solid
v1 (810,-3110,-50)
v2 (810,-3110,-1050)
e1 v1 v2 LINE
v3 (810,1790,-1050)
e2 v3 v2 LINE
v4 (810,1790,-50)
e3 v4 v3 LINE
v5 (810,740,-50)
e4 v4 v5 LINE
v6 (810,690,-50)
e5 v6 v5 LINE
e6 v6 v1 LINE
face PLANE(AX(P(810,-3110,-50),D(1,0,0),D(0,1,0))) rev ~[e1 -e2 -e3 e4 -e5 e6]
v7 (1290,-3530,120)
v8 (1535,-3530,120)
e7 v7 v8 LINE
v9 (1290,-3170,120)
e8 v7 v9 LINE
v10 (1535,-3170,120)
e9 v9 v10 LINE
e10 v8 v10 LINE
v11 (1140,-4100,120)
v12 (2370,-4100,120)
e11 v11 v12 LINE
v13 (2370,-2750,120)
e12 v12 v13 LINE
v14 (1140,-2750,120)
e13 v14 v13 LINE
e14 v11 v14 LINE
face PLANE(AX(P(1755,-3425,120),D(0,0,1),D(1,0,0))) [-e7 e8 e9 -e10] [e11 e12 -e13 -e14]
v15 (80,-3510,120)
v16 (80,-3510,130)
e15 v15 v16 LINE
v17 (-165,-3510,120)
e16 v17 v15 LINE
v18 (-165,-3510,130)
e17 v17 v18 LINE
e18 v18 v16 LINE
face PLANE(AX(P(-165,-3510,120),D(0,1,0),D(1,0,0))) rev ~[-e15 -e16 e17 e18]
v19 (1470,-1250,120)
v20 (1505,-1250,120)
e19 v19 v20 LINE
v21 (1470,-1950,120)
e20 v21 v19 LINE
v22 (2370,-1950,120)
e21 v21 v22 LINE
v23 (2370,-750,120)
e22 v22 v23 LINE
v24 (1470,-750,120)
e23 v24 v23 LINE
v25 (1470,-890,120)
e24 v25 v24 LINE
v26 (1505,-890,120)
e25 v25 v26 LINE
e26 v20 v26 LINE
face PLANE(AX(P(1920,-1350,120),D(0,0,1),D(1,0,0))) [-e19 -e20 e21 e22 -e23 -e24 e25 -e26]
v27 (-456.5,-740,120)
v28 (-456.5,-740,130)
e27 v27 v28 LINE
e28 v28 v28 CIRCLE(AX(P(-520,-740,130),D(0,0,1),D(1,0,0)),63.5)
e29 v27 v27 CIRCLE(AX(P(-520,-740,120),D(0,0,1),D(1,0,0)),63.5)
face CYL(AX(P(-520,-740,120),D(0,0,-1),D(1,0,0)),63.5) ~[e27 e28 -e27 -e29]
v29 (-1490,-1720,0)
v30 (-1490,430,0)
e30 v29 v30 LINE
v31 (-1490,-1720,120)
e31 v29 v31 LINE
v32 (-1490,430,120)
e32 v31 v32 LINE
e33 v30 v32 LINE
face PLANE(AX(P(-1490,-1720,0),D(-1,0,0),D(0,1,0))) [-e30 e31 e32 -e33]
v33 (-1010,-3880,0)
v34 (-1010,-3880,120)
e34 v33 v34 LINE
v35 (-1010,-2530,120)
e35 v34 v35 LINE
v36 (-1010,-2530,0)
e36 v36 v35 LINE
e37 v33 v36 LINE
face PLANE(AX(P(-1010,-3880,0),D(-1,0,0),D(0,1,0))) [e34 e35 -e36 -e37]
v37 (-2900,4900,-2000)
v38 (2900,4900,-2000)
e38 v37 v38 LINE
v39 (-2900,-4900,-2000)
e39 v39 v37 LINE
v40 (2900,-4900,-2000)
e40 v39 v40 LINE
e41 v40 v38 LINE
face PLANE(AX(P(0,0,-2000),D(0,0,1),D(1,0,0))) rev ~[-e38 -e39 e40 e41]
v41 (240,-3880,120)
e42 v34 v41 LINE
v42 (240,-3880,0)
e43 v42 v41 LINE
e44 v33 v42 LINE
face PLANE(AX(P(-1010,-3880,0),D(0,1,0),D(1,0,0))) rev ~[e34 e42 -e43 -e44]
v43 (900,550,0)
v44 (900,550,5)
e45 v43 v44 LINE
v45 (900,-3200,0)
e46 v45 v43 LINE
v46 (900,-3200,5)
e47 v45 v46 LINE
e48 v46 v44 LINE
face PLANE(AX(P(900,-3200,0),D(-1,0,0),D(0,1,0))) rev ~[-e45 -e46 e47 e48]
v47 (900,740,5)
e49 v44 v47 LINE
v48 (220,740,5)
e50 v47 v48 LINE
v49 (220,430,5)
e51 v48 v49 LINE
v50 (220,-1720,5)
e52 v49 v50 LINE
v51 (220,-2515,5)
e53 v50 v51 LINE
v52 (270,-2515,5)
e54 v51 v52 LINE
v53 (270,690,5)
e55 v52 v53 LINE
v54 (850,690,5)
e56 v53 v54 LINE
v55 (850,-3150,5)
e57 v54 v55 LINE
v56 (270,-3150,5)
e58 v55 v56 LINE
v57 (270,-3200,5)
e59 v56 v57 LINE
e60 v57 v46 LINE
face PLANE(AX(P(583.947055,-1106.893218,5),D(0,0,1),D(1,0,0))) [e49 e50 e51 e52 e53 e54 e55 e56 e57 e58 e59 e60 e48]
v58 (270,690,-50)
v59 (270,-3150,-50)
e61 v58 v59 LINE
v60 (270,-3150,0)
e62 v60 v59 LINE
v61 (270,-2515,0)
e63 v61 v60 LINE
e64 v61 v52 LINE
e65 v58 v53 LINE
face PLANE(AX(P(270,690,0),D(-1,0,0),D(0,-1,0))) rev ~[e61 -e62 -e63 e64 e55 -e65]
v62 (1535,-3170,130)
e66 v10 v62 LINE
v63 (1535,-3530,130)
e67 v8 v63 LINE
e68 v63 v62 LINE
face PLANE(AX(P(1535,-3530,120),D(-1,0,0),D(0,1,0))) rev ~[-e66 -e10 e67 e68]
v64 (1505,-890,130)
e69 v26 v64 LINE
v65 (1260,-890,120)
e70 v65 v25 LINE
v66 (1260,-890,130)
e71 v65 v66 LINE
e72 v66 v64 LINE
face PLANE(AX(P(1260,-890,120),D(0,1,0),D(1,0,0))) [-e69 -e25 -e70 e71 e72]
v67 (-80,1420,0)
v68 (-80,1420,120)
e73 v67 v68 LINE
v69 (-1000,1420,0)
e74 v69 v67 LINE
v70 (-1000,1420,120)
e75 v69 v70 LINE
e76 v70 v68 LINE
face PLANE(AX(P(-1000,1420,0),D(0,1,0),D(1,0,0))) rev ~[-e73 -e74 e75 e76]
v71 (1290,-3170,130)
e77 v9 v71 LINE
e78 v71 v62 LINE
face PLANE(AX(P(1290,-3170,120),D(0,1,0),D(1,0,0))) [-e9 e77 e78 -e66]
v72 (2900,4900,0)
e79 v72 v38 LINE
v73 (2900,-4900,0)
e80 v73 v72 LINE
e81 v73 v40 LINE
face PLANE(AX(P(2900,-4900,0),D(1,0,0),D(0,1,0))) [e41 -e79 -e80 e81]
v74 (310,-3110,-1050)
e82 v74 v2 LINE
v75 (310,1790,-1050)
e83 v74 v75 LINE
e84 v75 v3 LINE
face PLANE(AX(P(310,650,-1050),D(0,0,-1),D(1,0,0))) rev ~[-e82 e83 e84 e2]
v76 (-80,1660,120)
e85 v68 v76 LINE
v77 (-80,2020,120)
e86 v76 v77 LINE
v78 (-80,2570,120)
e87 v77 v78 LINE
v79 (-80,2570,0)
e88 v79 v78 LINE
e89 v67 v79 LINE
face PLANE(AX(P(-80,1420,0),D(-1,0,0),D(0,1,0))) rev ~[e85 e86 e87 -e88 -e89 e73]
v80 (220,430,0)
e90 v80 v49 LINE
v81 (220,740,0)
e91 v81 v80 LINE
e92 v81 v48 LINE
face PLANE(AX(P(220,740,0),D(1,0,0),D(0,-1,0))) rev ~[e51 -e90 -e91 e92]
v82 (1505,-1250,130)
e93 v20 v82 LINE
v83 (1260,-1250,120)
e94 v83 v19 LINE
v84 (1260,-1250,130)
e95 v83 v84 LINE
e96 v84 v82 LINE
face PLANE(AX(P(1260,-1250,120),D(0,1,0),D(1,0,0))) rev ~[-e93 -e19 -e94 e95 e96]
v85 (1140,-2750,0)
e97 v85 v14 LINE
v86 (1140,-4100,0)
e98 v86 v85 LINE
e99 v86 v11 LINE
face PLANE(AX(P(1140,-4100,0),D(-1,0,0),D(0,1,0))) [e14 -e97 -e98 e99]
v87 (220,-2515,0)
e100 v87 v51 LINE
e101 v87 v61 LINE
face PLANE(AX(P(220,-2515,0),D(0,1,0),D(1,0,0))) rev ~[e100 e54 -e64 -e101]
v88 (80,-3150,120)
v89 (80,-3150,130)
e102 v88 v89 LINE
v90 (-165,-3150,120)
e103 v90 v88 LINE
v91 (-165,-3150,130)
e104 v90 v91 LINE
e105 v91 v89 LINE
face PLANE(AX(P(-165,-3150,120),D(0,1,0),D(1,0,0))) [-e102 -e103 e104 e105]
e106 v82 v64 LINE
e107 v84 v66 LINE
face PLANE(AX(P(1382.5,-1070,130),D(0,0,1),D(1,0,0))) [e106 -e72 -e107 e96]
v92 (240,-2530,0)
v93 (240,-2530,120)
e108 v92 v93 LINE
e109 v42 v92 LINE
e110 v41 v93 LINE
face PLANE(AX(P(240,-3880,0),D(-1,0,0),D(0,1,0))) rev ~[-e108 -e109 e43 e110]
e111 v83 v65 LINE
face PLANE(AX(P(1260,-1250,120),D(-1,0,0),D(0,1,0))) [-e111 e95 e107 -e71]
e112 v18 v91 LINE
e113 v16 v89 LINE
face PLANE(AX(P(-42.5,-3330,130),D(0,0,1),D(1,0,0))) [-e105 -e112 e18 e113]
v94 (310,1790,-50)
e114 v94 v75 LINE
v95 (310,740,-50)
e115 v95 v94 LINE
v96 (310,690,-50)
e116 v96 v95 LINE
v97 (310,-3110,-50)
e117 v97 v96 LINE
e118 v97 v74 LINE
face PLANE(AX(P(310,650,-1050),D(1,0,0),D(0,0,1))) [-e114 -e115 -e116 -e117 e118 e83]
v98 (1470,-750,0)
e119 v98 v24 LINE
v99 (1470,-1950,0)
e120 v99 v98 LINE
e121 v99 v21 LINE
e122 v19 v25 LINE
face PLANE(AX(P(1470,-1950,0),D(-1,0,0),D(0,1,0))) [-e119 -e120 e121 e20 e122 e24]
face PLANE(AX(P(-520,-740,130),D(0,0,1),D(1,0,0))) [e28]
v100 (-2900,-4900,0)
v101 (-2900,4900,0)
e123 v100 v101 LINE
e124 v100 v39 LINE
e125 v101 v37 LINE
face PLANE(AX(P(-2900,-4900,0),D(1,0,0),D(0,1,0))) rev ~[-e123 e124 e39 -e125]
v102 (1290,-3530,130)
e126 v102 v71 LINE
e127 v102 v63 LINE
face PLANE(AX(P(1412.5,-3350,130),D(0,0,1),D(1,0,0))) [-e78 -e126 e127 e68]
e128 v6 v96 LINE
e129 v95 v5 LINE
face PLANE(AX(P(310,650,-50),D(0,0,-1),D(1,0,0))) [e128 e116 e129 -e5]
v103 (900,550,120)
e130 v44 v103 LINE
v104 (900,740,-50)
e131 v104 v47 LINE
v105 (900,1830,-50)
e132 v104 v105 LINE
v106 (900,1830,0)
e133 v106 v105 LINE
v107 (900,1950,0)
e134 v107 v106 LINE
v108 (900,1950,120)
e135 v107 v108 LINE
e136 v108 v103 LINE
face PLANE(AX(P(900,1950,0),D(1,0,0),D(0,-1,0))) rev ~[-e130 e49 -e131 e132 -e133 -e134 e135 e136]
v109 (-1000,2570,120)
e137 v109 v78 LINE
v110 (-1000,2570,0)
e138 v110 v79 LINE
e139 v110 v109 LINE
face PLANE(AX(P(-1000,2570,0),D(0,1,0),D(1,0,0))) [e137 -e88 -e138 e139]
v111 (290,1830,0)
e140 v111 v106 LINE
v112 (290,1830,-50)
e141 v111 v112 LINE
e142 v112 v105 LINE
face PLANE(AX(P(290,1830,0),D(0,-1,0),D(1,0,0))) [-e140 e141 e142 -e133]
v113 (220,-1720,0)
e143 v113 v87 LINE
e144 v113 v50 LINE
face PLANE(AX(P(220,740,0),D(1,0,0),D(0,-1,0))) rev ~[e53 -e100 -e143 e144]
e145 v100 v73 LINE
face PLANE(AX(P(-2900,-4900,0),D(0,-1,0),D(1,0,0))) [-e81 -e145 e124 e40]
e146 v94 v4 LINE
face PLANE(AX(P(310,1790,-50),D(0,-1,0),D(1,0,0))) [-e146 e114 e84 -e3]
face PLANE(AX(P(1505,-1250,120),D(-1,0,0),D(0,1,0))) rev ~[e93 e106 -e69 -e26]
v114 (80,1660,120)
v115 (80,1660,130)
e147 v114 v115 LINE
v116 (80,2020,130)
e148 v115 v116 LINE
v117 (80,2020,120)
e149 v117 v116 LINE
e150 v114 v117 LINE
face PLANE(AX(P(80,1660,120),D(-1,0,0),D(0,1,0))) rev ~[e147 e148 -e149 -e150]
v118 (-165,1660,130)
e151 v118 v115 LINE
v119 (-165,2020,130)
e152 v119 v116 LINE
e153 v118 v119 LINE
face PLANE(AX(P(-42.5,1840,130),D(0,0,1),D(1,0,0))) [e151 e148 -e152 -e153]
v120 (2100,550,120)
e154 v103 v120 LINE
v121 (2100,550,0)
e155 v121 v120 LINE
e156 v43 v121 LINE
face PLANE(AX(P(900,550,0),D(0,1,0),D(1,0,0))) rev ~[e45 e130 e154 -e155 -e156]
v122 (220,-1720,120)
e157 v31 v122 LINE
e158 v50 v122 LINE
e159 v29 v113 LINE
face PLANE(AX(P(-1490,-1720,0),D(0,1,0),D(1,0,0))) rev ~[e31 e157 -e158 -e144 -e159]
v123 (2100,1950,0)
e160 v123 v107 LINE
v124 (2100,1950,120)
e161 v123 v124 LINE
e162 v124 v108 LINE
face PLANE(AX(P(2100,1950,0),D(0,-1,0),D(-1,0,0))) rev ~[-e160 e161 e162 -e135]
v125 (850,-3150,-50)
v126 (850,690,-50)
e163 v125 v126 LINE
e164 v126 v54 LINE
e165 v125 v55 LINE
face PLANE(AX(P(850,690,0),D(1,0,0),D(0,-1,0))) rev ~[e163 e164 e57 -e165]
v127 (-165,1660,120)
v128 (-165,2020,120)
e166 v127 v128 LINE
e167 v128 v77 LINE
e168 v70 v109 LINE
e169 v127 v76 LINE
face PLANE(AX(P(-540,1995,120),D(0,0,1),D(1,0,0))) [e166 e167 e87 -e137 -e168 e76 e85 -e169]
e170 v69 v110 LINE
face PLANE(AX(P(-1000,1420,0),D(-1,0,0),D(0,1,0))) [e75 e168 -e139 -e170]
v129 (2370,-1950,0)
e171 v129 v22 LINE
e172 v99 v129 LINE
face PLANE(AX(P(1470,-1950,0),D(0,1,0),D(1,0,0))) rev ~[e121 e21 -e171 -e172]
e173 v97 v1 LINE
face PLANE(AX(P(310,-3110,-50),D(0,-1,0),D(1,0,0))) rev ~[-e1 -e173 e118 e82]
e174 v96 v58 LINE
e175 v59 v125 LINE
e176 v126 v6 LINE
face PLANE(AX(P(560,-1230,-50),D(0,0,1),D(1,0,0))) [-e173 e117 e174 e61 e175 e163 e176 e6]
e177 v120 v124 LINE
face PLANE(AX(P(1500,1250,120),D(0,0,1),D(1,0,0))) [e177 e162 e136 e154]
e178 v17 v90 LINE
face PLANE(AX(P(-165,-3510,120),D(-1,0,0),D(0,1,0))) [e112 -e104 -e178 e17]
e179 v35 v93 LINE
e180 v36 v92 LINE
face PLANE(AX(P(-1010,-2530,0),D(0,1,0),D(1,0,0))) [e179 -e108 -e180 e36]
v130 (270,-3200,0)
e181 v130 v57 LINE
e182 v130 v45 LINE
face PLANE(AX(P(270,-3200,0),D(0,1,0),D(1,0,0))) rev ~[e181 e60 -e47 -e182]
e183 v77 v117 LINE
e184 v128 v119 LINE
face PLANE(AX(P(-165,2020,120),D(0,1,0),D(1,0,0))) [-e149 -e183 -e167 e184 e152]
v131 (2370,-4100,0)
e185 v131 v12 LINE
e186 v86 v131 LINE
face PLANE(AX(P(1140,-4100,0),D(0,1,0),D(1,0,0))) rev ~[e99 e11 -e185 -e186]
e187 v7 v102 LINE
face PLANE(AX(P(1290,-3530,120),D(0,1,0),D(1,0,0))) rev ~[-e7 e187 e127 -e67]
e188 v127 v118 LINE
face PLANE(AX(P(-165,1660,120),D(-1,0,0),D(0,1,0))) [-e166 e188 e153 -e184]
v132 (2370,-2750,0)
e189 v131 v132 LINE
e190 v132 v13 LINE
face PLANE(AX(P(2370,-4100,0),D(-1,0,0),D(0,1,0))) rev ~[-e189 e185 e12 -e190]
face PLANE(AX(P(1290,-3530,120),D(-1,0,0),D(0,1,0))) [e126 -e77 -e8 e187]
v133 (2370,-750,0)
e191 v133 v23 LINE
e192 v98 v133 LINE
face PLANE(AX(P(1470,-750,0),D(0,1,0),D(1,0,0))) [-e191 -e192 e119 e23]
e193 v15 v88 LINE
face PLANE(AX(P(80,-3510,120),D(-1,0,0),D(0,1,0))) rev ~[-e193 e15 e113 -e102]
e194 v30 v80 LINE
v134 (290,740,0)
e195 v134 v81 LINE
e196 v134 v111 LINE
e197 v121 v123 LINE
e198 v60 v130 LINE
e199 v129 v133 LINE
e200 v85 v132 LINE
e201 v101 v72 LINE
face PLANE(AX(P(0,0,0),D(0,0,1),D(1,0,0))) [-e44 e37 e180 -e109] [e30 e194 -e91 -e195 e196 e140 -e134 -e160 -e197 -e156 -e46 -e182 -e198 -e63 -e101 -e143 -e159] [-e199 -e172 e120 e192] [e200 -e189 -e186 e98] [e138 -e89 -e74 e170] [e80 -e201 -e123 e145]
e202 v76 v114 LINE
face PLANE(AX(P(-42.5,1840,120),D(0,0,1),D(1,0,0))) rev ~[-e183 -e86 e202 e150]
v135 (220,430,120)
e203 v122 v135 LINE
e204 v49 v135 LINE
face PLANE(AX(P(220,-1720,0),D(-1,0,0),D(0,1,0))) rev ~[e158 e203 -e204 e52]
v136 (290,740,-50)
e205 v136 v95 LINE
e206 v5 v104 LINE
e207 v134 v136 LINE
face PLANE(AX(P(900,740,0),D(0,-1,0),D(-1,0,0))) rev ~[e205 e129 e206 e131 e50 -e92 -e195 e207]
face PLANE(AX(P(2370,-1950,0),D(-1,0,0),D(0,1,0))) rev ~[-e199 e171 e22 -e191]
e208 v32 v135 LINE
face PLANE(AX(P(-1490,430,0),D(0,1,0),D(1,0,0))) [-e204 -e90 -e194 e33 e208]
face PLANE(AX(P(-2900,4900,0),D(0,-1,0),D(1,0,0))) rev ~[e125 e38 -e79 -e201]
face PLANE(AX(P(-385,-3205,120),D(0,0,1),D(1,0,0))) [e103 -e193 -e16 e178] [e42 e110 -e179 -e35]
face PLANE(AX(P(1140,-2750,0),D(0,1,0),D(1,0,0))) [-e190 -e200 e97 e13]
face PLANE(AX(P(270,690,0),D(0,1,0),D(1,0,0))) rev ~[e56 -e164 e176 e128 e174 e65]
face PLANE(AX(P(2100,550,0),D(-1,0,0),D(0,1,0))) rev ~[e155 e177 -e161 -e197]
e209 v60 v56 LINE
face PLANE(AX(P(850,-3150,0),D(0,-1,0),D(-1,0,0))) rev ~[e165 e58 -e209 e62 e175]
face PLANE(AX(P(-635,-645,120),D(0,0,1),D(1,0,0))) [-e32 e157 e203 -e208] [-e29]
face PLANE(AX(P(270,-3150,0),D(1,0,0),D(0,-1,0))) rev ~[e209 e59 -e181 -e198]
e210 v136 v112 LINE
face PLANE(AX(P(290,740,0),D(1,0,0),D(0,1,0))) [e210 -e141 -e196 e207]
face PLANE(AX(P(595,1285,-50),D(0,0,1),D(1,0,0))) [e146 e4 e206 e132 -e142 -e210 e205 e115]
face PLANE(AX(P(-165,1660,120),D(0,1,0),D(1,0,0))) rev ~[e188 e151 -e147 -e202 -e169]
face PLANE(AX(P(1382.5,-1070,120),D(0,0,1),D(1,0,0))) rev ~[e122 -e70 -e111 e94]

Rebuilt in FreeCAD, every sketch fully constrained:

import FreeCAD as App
import Part
import Sketcher
Q = App.Units.Quantity

doc = App.newDocument("Part")
body = doc.addObject("PartDesign::Body", "Body")

# Sketch on XY plane
sketch1 = body.newObject("Sketcher::SketchObject", "Sketch")
sketch1.AttachmentSupport = (doc.getObject("XY_Plane"), [""])
sketch1.MapMode = "FlatFace"
sketch1.addGeometry(Part.LineSegment(App.Vector(-2900, 4900, 0), App.Vector(-2900, -4900, 0)), False)
sketch1.addGeometry(Part.LineSegment(App.Vector(-2900, -4900, 0), App.Vector(2900, -4900, 0)), False)
sketch1.addGeometry(Part.LineSegment(App.Vector(2900, -4900, 0), App.Vector(2900, 4900, 0)), False)
sketch1.addGeometry(Part.LineSegment(App.Vector(2900, 4900, 0), App.Vector(-2900, 4900, 0)), False)
sketch1.addConstraint(Sketcher.Constraint("Coincident", 0, 2, 1, 1))
sketch1.addConstraint(Sketcher.Constraint("Coincident", 1, 2, 2, 1))
sketch1.addConstraint(Sketcher.Constraint("Coincident", 2, 2, 3, 1))
sketch1.addConstraint(Sketcher.Constraint("Coincident", 3, 2, 0, 1))
sketch1.addConstraint(Sketcher.Constraint("Vertical", 0))
sketch1.addConstraint(Sketcher.Constraint("Horizontal", 1))
sketch1.addConstraint(Sketcher.Constraint("Vertical", 2))
sketch1.addConstraint(Sketcher.Constraint("Horizontal", 3))
sketch1.addConstraint(Sketcher.Constraint("Symmetric", 0, 2, 2, 2, -1, 1))
sketch1.addConstraint(Sketcher.Constraint("DistanceX", 1, 1, 1, 2, Q("5800 mm")))
sketch1.addConstraint(Sketcher.Constraint("DistanceY", 0, 2, 0, 1, Q("9800 mm")))
pad1 = body.newObject("PartDesign::Pad", "Pad")
pad1.Profile = sketch1
pad1.Length = 2000
pad1.Reversed = True

# Sketch on XY plane
sketch2 = body.newObject("Sketcher::SketchObject", "Sketch001")
sketch2.AttachmentSupport = (doc.getObject("XY_Plane"), [""])
sketch2.MapMode = "FlatFace"
sketch2.addGeometry(Part.LineSegment(App.Vector(-1000, 2570, 0), App.Vector(-1000, 1420, 0)), False)
sketch2.addGeometry(Part.LineSegment(App.Vector(-1000, 1420, 0), App.Vector(-80, 1420, 0)), False)
sketch2.addGeometry(Part.LineSegment(App.Vector(-80, 1420, 0), App.Vector(-80, 2570, 0)), False)
sketch2.addGeometry(Part.LineSegment(App.Vector(-80, 2570, 0), App.Vector(-1000, 2570, 0)), False)
sketch2.addGeometry(Part.LineSegment(App.Vector(1470, -750, 0), App.Vector(1470, -1950, 0)), False)
sketch2.addGeometry(Part.LineSegment(App.Vector(1470, -1950, 0), App.Vector(2370, -1950, 0)), False)
sketch2.addGeometry(Part.LineSegment(App.Vector(2370, -1950, 0), App.Vector(2370, -750, 0)), False)
sketch2.addGeometry(Part.LineSegment(App.Vector(2370, -750, 0), App.Vector(1470, -750, 0)), False)
sketch2.addGeometry(Part.LineSegment(App.Vector(1140, -2750, 0), App.Vector(1140, -4100, 0)), False)
sketch2.addGeometry(Part.LineSegment(App.Vector(1140, -4100, 0), App.Vector(2370, -4100, 0)), False)
sketch2.addGeometry(Part.LineSegment(App.Vector(2370, -4100, 0), App.Vector(2370, -2750, 0)), False)
sketch2.addGeometry(Part.LineSegment(App.Vector(2370, -2750, 0), App.Vector(1140, -2750, 0)), False)
sketch2.addGeometry(Part.LineSegment(App.Vector(-1490, 430, 0), App.Vector(-1490, -1720, 0)), False)
sketch2.addGeometry(Part.LineSegment(App.Vector(-1490, -1720, 0), App.Vector(220, -1720, 0)), False)
sketch2.addGeometry(Part.LineSegment(App.Vector(220, -1720, 0), App.Vector(220, 430, 0)), False)
sketch2.addGeometry(Part.LineSegment(App.Vector(220, 430, 0), App.Vector(-1490, 430, 0)), False)
sketch2.addGeometry(Part.LineSegment(App.Vector(-1010, -2530, 0), App.Vector(-1010, -3880, 0)), False)
sketch2.addGeometry(Part.LineSegment(App.Vector(-1010, -3880, 0), App.Vector(240, -3880, 0)), False)
sketch2.addGeometry(Part.LineSegment(App.Vector(240, -3880, 0), App.Vector(240, -2530, 0)), False)
sketch2.addGeometry(Part.LineSegment(App.Vector(240, -2530, 0), App.Vector(-1010, -2530, 0)), False)
sketch2.addGeometry(Part.LineSegment(App.Vector(900, 550, 0), App.Vector(2100, 550, 0)), False)
sketch2.addGeometry(Part.LineSegment(App.Vector(2100, 550, 0), App.Vector(2100, 1950, 0)), False)
sketch2.addGeometry(Part.LineSegment(App.Vector(2100, 1950, 0), App.Vector(900, 1950, 0)), False)
sketch2.addGeometry(Part.LineSegment(App.Vector(900, 1950, 0), App.Vector(900, 550, 0)), False)
sketch2.addConstraint(Sketcher.Constraint("Coincident", 0, 2, 1, 1))
sketch2.addConstraint(Sketcher.Constraint("Coincident", 1, 2, 2, 1))
sketch2.addConstraint(Sketcher.Constraint("Coincident", 2, 2, 3, 1))
sketch2.addConstraint(Sketcher.Constraint("Coincident", 3, 2, 0, 1))
sketch2.addConstraint(Sketcher.Constraint("Coincident", 4, 2, 5, 1))
sketch2.addConstraint(Sketcher.Constraint("Coincident", 5, 2, 6, 1))
sketch2.addConstraint(Sketcher.Constraint("Coincident", 6, 2, 7, 1))
sketch2.addConstraint(Sketcher.Constraint("Coincident", 7, 2, 4, 1))
sketch2.addConstraint(Sketcher.Constraint("Coincident", 8, 2, 9, 1))
sketch2.addConstraint(Sketcher.Constraint("Coincident", 9, 2, 10, 1))
sketch2.addConstraint(Sketcher.Constraint("Coincident", 10, 2, 11, 1))
sketch2.addConstraint(Sketcher.Constraint("Coincident", 11, 2, 8, 1))
sketch2.addConstraint(Sketcher.Constraint("Coincident", 12, 2, 13, 1))
sketch2.addConstraint(Sketcher.Constraint("Coincident", 13, 2, 14, 1))
sketch2.addConstraint(Sketcher.Constraint("Coincident", 14, 2, 15, 1))
sketch2.addConstraint(Sketcher.Constraint("Coincident", 15, 2, 12, 1))
sketch2.addConstraint(Sketcher.Constraint("Coincident", 16, 2, 17, 1))
sketch2.addConstraint(Sketcher.Constraint("Coincident", 17, 2, 18, 1))
sketch2.addConstraint(Sketcher.Constraint("Coincident", 18, 2, 19, 1))
sketch2.addConstraint(Sketcher.Constraint("Coincident", 19, 2, 16, 1))
sketch2.addConstraint(Sketcher.Constraint("Coincident", 20, 2, 21, 1))
sketch2.addConstraint(Sketcher.Constraint("Coincident", 21, 2, 22, 1))
sketch2.addConstraint(Sketcher.Constraint("Coincident", 22, 2, 23, 1))
sketch2.addConstraint(Sketcher.Constraint("Coincident", 23, 2, 20, 1))
sketch2.addConstraint(Sketcher.Constraint("Vertical", 0))
sketch2.addConstraint(Sketcher.Constraint("Horizontal", 1))
sketch2.addConstraint(Sketcher.Constraint("Vertical", 2))
sketch2.addConstraint(Sketcher.Constraint("Horizontal", 3))
sketch2.addConstraint(Sketcher.Constraint("Vertical", 4))
sketch2.addConstraint(Sketcher.Constraint("Horizontal", 5))
sketch2.addConstraint(Sketcher.Constraint("Vertical", 6))
sketch2.addConstraint(Sketcher.Constraint("Horizontal", 7))
sketch2.addConstraint(Sketcher.Constraint("Vertical", 8))
sketch2.addConstraint(Sketcher.Constraint("Horizontal", 9))
sketch2.addConstraint(Sketcher.Constraint("Vertical", 10))
sketch2.addConstraint(Sketcher.Constraint("Horizontal", 11))
sketch2.addConstraint(Sketcher.Constraint("Vertical", 12))
sketch2.addConstraint(Sketcher.Constraint("Horizontal", 13))
sketch2.addConstraint(Sketcher.Constraint("Vertical", 14))
sketch2.addConstraint(Sketcher.Constraint("Horizontal", 15))
sketch2.addConstraint(Sketcher.Constraint("Vertical", 16))
sketch2.addConstraint(Sketcher.Constraint("Horizontal", 17))
sketch2.addConstraint(Sketcher.Constraint("Vertical", 18))
sketch2.addConstraint(Sketcher.Constraint("Horizontal", 19))
sketch2.addConstraint(Sketcher.Constraint("Horizontal", 20))
sketch2.addConstraint(Sketcher.Constraint("Vertical", 21))
sketch2.addConstraint(Sketcher.Constraint("Horizontal", 22))
sketch2.addConstraint(Sketcher.Constraint("Vertical", 23))
sketch2.addConstraint(Sketcher.Constraint("Vertical", 6, 2, 9, 2))
sketch2.addConstraint(Sketcher.Constraint("Equal", 22, 4))
sketch2.addConstraint(Sketcher.Constraint("Equal", 10, 16))
sketch2.addConstraint(Sketcher.Constraint("DistanceX", 1, 1, 1, 2, Q("920 mm")))
sketch2.addConstraint(Sketcher.Constraint("DistanceX", 5, 1, 5, 2, Q("900 mm")))
sketch2.addConstraint(Sketcher.Constraint("DistanceX", 9, 1, 9, 2, Q("1230 mm")))
sketch2.addConstraint(Sketcher.Constraint("DistanceX", 13, 1, 13, 2, Q("1710 mm")))
sketch2.addConstraint(Sketcher.Constraint("DistanceX", 17, 1, 17, 2, Q("1250 mm")))
sketch2.addConstraint(Sketcher.Constraint("DistanceX", 20, 1, 20, 2, Q("1200 mm")))
sketch2.addConstraint(Sketcher.Constraint("DistanceY", 0, 2, 0, 1, Q("1150 mm")))
sketch2.addConstraint(Sketcher.Constraint("DistanceY", 8, 2, 8, 1, Q("1350 mm")))
sketch2.addConstraint(Sketcher.Constraint("DistanceY", 12, 2, 12, 1, Q("2150 mm")))
sketch2.addConstraint(Sketcher.Constraint("DistanceY", 21, 1, 21, 2, Q("1400 mm")))
sketch2.addConstraint(Sketcher.Constraint("DistanceX", 0, 2, -1, 1, Q("1000 mm")))
sketch2.addConstraint(Sketcher.Constraint("DistanceY", -1, 1, 0, 2, Q("1420 mm")))
sketch2.addConstraint(Sketcher.Constraint("DistanceX", -1, 1, 4, 2, Q("1470 mm")))
sketch2.addConstraint(Sketcher.Constraint("DistanceY", 4, 2, -1, 1, Q("1950 mm")))
sketch2.addConstraint(Sketcher.Constraint("DistanceY", 8, 2, -1, 1, Q("4100 mm")))
sketch2.addConstraint(Sketcher.Constraint("DistanceX", 12, 2, -1, 1, Q("1490 mm")))
sketch2.addConstraint(Sketcher.Constraint("DistanceY", 12, 2, -1, 1, Q("1720 mm")))
sketch2.addConstraint(Sketcher.Constraint("DistanceX", 16, 2, -1, 1, Q("1010 mm")))
sketch2.addConstraint(Sketcher.Constraint("DistanceY", 16, 2, -1, 1, Q("3880 mm")))
sketch2.addConstraint(Sketcher.Constraint("DistanceX", -1, 1, 20, 2, Q("2100 mm")))
sketch2.addConstraint(Sketcher.Constraint("DistanceY", -1, 1, 20, 2, Q("550 mm")))
pad2 = body.newObject("PartDesign::Pad", "Pad001")
pad2.Profile = sketch2
pad2.Length = 120

# Sketch on XY plane
sketch3 = body.newObject("Sketcher::SketchObject", "Sketch002")
sketch3.AttachmentSupport = (doc.getObject("XY_Plane"), [""])
sketch3.MapMode = "FlatFace"
sketch3.addGeometry(Part.LineSegment(App.Vector(900, -3200, 0), App.Vector(900, 740, 0)), False)
sketch3.addGeometry(Part.LineSegment(App.Vector(900, 740, 0), App.Vector(220, 740, 0)), False)
sketch3.addGeometry(Part.LineSegment(App.Vector(220, 740, 0), App.Vector(220, -2515, 0)), False)
sketch3.addGeometry(Part.LineSegment(App.Vector(220, -2515, 0), App.Vector(270, -2515, 0)), False)
sketch3.addGeometry(Part.LineSegment(App.Vector(270, -2515, 0), App.Vector(270, 690, 0)), False)
sketch3.addGeometry(Part.LineSegment(App.Vector(270, 690, 0), App.Vector(850, 690, 0)), False)
sketch3.addGeometry(Part.LineSegment(App.Vector(850, 690, 0), App.Vector(850, -3150, 0)), False)
sketch3.addGeometry(Part.LineSegment(App.Vector(850, -3150, 0), App.Vector(270, -3150, 0)), False)
sketch3.addGeometry(Part.LineSegment(App.Vector(270, -3150, 0), App.Vector(270, -3200, 0)), False)
sketch3.addGeometry(Part.LineSegment(App.Vector(270, -3200, 0), App.Vector(900, -3200, 0)), False)
sketch3.addConstraint(Sketcher.Constraint("Coincident", 0, 2, 1, 1))
sketch3.addConstraint(Sketcher.Constraint("Coincident", 1, 2, 2, 1))
sketch3.addConstraint(Sketcher.Constraint("Coincident", 2, 2, 3, 1))
sketch3.addConstraint(Sketcher.Constraint("Coincident", 3, 2, 4, 1))
sketch3.addConstraint(Sketcher.Constraint("Coincident", 4, 2, 5, 1))
sketch3.addConstraint(Sketcher.Constraint("Coincident", 5, 2, 6, 1))
sketch3.addConstraint(Sketcher.Constraint("Coincident", 6, 2, 7, 1))
sketch3.addConstraint(Sketcher.Constraint("Coincident", 7, 2, 8, 1))
sketch3.addConstraint(Sketcher.Constraint("Coincident", 8, 2, 9, 1))
sketch3.addConstraint(Sketcher.Constraint("Coincident", 9, 2, 0, 1))
sketch3.addConstraint(Sketcher.Constraint("Vertical", 0))
sketch3.addConstraint(Sketcher.Constraint("Horizontal", 1))
sketch3.addConstraint(Sketcher.Constraint("Vertical", 2))
sketch3.addConstraint(Sketcher.Constraint("Horizontal", 3))
sketch3.addConstraint(Sketcher.Constraint("Vertical", 4))
sketch3.addConstraint(Sketcher.Constraint("Horizontal", 5))
sketch3.addConstraint(Sketcher.Constraint("Vertical", 6))
sketch3.addConstraint(Sketcher.Constraint("Horizontal", 7))
sketch3.addConstraint(Sketcher.Constraint("Vertical", 8))
sketch3.addConstraint(Sketcher.Constraint("Horizontal", 9))
sketch3.addConstraint(Sketcher.Constraint("Vertical", 4, 2, 7, 2))
sketch3.addConstraint(Sketcher.Constraint("Equal", 3, 8))
sketch3.addConstraint(Sketcher.Constraint("DistanceX", 1, 2, 1, 1, Q("680 mm")))
sketch3.addConstraint(Sketcher.Constraint("DistanceX", 3, 1, 3, 2, Q("50 mm")))
sketch3.addConstraint(Sketcher.Constraint("DistanceX", 5, 1, 5, 2, Q("580 mm")))
sketch3.addConstraint(Sketcher.Constraint("DistanceY", 0, 1, 0, 2, Q("3940 mm")))
sketch3.addConstraint(Sketcher.Constraint("DistanceY", 2, 2, 2, 1, Q("3255 mm")))
sketch3.addConstraint(Sketcher.Constraint("DistanceY", 4, 1, 4, 2, Q("3205 mm")))
sketch3.addConstraint(Sketcher.Constraint("DistanceX", -1, 1, 0, 2, Q("900 mm")))
sketch3.addConstraint(Sketcher.Constraint("DistanceY", -1, 1, 0, 2, Q("740 mm")))
pad3 = body.newObject("PartDesign::Pad", "Pad002")
pad3.Profile = sketch3
pad3.Length = 5

# Sketch on XY plane
sketch4 = body.newObject("Sketcher::SketchObject", "Sketch003")
sketch4.AttachmentSupport = (doc.getObject("XY_Plane"), [""])
sketch4.MapMode = "FlatFace"
sketch4.addGeometry(Part.LineSegment(App.Vector(850, 690, 0), App.Vector(270, 690, 0)), False)
sketch4.addGeometry(Part.LineSegment(App.Vector(270, 690, 0), App.Vector(270, -3150, 0)), False)
sketch4.addGeometry(Part.LineSegment(App.Vector(270, -3150, 0), App.Vector(850, -3150, 0)), False)
sketch4.addGeometry(Part.LineSegment(App.Vector(850, -3150, 0), App.Vector(850, 690, 0)), False)
sketch4.addGeometry(Part.LineSegment(App.Vector(290, 1830, 0), App.Vector(290, 740, 0)), False)
sketch4.addGeometry(Part.LineSegment(App.Vector(290, 740, 0), App.Vector(900, 740, 0)), False)
sketch4.addGeometry(Part.LineSegment(App.Vector(900, 740, 0), App.Vector(900, 1830, 0)), False)
sketch4.addGeometry(Part.LineSegment(App.Vector(900, 1830, 0), App.Vector(290, 1830, 0)), False)
sketch4.addConstraint(Sketcher.Constraint("Coincident", 0, 2, 1, 1))
sketch4.addConstraint(Sketcher.Constraint("Coincident", 1, 2, 2, 1))
sketch4.addConstraint(Sketcher.Constraint("Coincident", 2, 2, 3, 1))
sketch4.addConstraint(Sketcher.Constraint("Coincident", 3, 2, 0, 1))
sketch4.addConstraint(Sketcher.Constraint("Coincident", 4, 2, 5, 1))
sketch4.addConstraint(Sketcher.Constraint("Coincident", 5, 2, 6, 1))
sketch4.addConstraint(Sketcher.Constraint("Coincident", 6, 2, 7, 1))
sketch4.addConstraint(Sketcher.Constraint("Coincident", 7, 2, 4, 1))
sketch4.addConstraint(Sketcher.Constraint("Horizontal", 0))
sketch4.addConstraint(Sketcher.Constraint("Vertical", 1))
sketch4.addConstraint(Sketcher.Constraint("Horizontal", 2))
sketch4.addConstraint(Sketcher.Constraint("Vertical", 3))
sketch4.addConstraint(Sketcher.Constraint("Vertical", 4))
sketch4.addConstraint(Sketcher.Constraint("Horizontal", 5))
sketch4.addConstraint(Sketcher.Constraint("Vertical", 6))
sketch4.addConstraint(Sketcher.Constraint("Horizontal", 7))
sketch4.addConstraint(Sketcher.Constraint("DistanceX", 0, 2, 0, 1, Q("580 mm")))
sketch4.addConstraint(Sketcher.Constraint("DistanceX", 5, 1, 5, 2, Q("610 mm")))
sketch4.addConstraint(Sketcher.Constraint("DistanceY", 1, 2, 1, 1, Q("3840 mm")))
sketch4.addConstraint(Sketcher.Constraint("DistanceY", 4, 2, 4, 1, Q("1090 mm")))
sketch4.addConstraint(Sketcher.Constraint("DistanceX", -1, 1, 0, 2, Q("270 mm")))
sketch4.addConstraint(Sketcher.Constraint("DistanceY", -1, 1, 0, 2, Q("690 mm")))
sketch4.addConstraint(Sketcher.Constraint("DistanceX", -1, 1, 4, 2, Q("290 mm")))
sketch4.addConstraint(Sketcher.Constraint("DistanceY", -1, 1, 4, 2, Q("740 mm")))
pocket1 = body.newObject("PartDesign::Pocket", "Pocket")
pocket1.Profile = sketch4
pocket1.Length = 50

# Sketch on XY plane
sketch5 = body.newObject("Sketcher::SketchObject", "Sketch004")
sketch5.AttachmentSupport = (doc.getObject("XY_Plane"), [""])
sketch5.MapMode = "FlatFace"
sketch5.AttachmentOffset = App.Placement(App.Vector(0, 0, -50), App.Rotation())
sketch5.addGeometry(Part.LineSegment(App.Vector(810, 650, 0), App.Vector(310, 650, 0)), False)
sketch5.addGeometry(Part.LineSegment(App.Vector(310, 650, 0), App.Vector(310, -3110, 0)), False)
sketch5.addGeometry(Part.LineSegment(App.Vector(310, -3110, 0), App.Vector(810, -3110, 0)), False)
sketch5.addGeometry(Part.LineSegment(App.Vector(810, -3110, 0), App.Vector(810, 650, 0)), False)
sketch5.addGeometry(Part.LineSegment(App.Vector(310, 1790, 0), App.Vector(310, 780, 0)), False)
sketch5.addGeometry(Part.LineSegment(App.Vector(310, 780, 0), App.Vector(810, 780, 0)), False)
sketch5.addGeometry(Part.LineSegment(App.Vector(810, 780, 0), App.Vector(810, 1790, 0)), False)
sketch5.addGeometry(Part.LineSegment(App.Vector(810, 1790, 0), App.Vector(310, 1790, 0)), False)
sketch5.addConstraint(Sketcher.Constraint("Coincident", 0, 2, 1, 1))
sketch5.addConstraint(Sketcher.Constraint("Coincident", 1, 2, 2, 1))
sketch5.addConstraint(Sketcher.Constraint("Coincident", 2, 2, 3, 1))
sketch5.addConstraint(Sketcher.Constraint("Coincident", 3, 2, 0, 1))
sketch5.addConstraint(Sketcher.Constraint("Coincident", 4, 2, 5, 1))
sketch5.addConstraint(Sketcher.Constraint("Coincident", 5, 2, 6, 1))
sketch5.addConstraint(Sketcher.Constraint("Coincident", 6, 2, 7, 1))
sketch5.addConstraint(Sketcher.Constraint("Coincident", 7, 2, 4, 1))
sketch5.addConstraint(Sketcher.Constraint("Horizontal", 0))
sketch5.addConstraint(Sketcher.Constraint("Vertical", 1))
sketch5.addConstraint(Sketcher.Constraint("Horizontal", 2))
sketch5.addConstraint(Sketcher.Constraint("Vertical", 3))
sketch5.addConstraint(Sketcher.Constraint("Vertical", 4))
sketch5.addConstraint(Sketcher.Constraint("Horizontal", 5))
sketch5.addConstraint(Sketcher.Constraint("Vertical", 6))
sketch5.addConstraint(Sketcher.Constraint("Horizontal", 7))
sketch5.addConstraint(Sketcher.Constraint("Vertical", 1, 2, 4, 2))
sketch5.addConstraint(Sketcher.Constraint("Vertical", 3, 2, 5, 2))
sketch5.addConstraint(Sketcher.Constraint("DistanceX", 0, 2, 0, 1, Q("500 mm")))
sketch5.addConstraint(Sketcher.Constraint("DistanceY", 1, 2, 1, 1, Q("3760 mm")))
sketch5.addConstraint(Sketcher.Constraint("DistanceY", 4, 2, 4, 1, Q("1010 mm")))
sketch5.addConstraint(Sketcher.Constraint("DistanceX", -1, 1, 0, 2, Q("310 mm")))
sketch5.addConstraint(Sketcher.Constraint("DistanceY", -1, 1, 0, 2, Q("650 mm")))
sketch5.addConstraint(Sketcher.Constraint("DistanceY", -1, 1, 4, 2, Q("780 mm")))
pocket2 = body.newObject("PartDesign::Pocket", "Pocket001")
pocket2.Profile = sketch5
pocket2.Length = 1000

# Sketch on XZ plane
sketch6 = body.newObject("Sketcher::SketchObject", "Sketch005")
sketch6.AttachmentSupport = (doc.getObject("XZ_Plane"), [""])
sketch6.MapMode = "FlatFace"
sketch6.AttachmentOffset = App.Placement(App.Vector(0, 0, -650), App.Rotation())
sketch6.addGeometry(Part.LineSegment(App.Vector(310, -50, 0), App.Vector(310, -1050, 0)), False)
sketch6.addGeometry(Part.LineSegment(App.Vector(310, -1050, 0), App.Vector(810, -1050, 0)), False)
sketch6.addGeometry(Part.LineSegment(App.Vector(810, -1050, 0), App.Vector(810, -50, 0)), False)
sketch6.addGeometry(Part.LineSegment(App.Vector(810, -50, 0), App.Vector(310, -50, 0)), False)
sketch6.addConstraint(Sketcher.Constraint("Coincident", 0, 2, 1, 1))
sketch6.addConstraint(Sketcher.Constraint("Coincident", 1, 2, 2, 1))
sketch6.addConstraint(Sketcher.Constraint("Coincident", 2, 2, 3, 1))
sketch6.addConstraint(Sketcher.Constraint("Coincident", 3, 2, 0, 1))
sketch6.addConstraint(Sketcher.Constraint("Vertical", 0))
sketch6.addConstraint(Sketcher.Constraint("Horizontal", 1))
sketch6.addConstraint(Sketcher.Constraint("Vertical", 2))
sketch6.addConstraint(Sketcher.Constraint("Horizontal", 3))
sketch6.addConstraint(Sketcher.Constraint("DistanceX", 1, 1, 1, 2, Q("500 mm")))
sketch6.addConstraint(Sketcher.Constraint("DistanceY", 0, 2, 0, 1, Q("1000 mm")))
sketch6.addConstraint(Sketcher.Constraint("DistanceX", -1, 1, 0, 2, Q("310 mm")))
sketch6.addConstraint(Sketcher.Constraint("DistanceY", 0, 2, -1, 1, Q("1050 mm")))
pocket3 = body.newObject("PartDesign::Pocket", "Pocket002")
pocket3.Profile = sketch6
pocket3.Length = 290

# Sketch on XY plane
sketch7 = body.newObject("Sketcher::SketchObject", "Sketch006")
sketch7.AttachmentSupport = (doc.getObject("XY_Plane"), [""])
sketch7.MapMode = "FlatFace"
sketch7.AttachmentOffset = App.Placement(App.Vector(0, 0, 120), App.Rotation())
sketch7.addGeometry(Part.LineSegment(App.Vector(-165, 2020, 0), App.Vector(-165, 1660, 0)), False)
sketch7.addGeometry(Part.LineSegment(App.Vector(-165, 1660, 0), App.Vector(80, 1660, 0)), False)
sketch7.addGeometry(Part.LineSegment(App.Vector(80, 1660, 0), App.Vector(80, 2020, 0)), False)
sketch7.addGeometry(Part.LineSegment(App.Vector(80, 2020, 0), App.Vector(-165, 2020, 0)), False)
sketch7.addGeometry(Part.Circle(App.Vector(-520, -740, 0), App.Vector(0, 0, 1), 63.5), False)
sketch7.addGeometry(Part.LineSegment(App.Vector(-165, -3150, 0), App.Vector(-165, -3510, 0)), False)
sketch7.addGeometry(Part.LineSegment(App.Vector(-165, -3510, 0), App.Vector(80, -3510, 0)), False)
sketch7.addGeometry(Part.LineSegment(App.Vector(80, -3510, 0), App.Vector(80, -3150, 0)), False)
sketch7.addGeometry(Part.LineSegment(App.Vector(80, -3150, 0), App.Vector(-165, -3150, 0)), False)
sketch7.addGeometry(Part.LineSegment(App.Vector(1290, -3170, 0), App.Vector(1290, -3530, 0)), False)
sketch7.addGeometry(Part.LineSegment(App.Vector(1290, -3530, 0), App.Vector(1535, -3530, 0)), False)
sketch7.addGeometry(Part.LineSegment(App.Vector(1535, -3530, 0), App.Vector(1535, -3170, 0)), False)
sketch7.addGeometry(Part.LineSegment(App.Vector(1535, -3170, 0), App.Vector(1290, -3170, 0)), False)
sketch7.addGeometry(Part.LineSegment(App.Vector(1260, -890, 0), App.Vector(1260, -1250, 0)), False)
sketch7.addGeometry(Part.LineSegment(App.Vector(1260, -1250, 0), App.Vector(1505, -1250, 0)), False)
sketch7.addGeometry(Part.LineSegment(App.Vector(1505, -1250, 0), App.Vector(1505, -890, 0)), False)
sketch7.addGeometry(Part.LineSegment(App.Vector(1505, -890, 0), App.Vector(1260, -890, 0)), False)
sketch7.addConstraint(Sketcher.Constraint("Coincident", 0, 2, 1, 1))
sketch7.addConstraint(Sketcher.Constraint("Coincident", 1, 2, 2, 1))
sketch7.addConstraint(Sketcher.Constraint("Coincident", 2, 2, 3, 1))
sketch7.addConstraint(Sketcher.Constraint("Coincident", 3, 2, 0, 1))
sketch7.addConstraint(Sketcher.Constraint("Coincident", 5, 2, 6, 1))
sketch7.addConstraint(Sketcher.Constraint("Coincident", 6, 2, 7, 1))
sketch7.addConstraint(Sketcher.Constraint("Coincident", 7, 2, 8, 1))
sketch7.addConstraint(Sketcher.Constraint("Coincident", 8, 2, 5, 1))
sketch7.addConstraint(Sketcher.Constraint("Coincident", 9, 2, 10, 1))
sketch7.addConstraint(Sketcher.Constraint("Coincident", 10, 2, 11, 1))
sketch7.addConstraint(Sketcher.Constraint("Coincident", 11, 2, 12, 1))
sketch7.addConstraint(Sketcher.Constraint("Coincident", 12, 2, 9, 1))
sketch7.addConstraint(Sketcher.Constraint("Coincident", 13, 2, 14, 1))
sketch7.addConstraint(Sketcher.Constraint("Coincident", 14, 2, 15, 1))
sketch7.addConstraint(Sketcher.Constraint("Coincident", 15, 2, 16, 1))
sketch7.addConstraint(Sketcher.Constraint("Coincident", 16, 2, 13, 1))
sketch7.addConstraint(Sketcher.Constraint("Vertical", 0))
sketch7.addConstraint(Sketcher.Constraint("Horizontal", 1))
sketch7.addConstraint(Sketcher.Constraint("Vertical", 2))
sketch7.addConstraint(Sketcher.Constraint("Horizontal", 3))
sketch7.addConstraint(Sketcher.Constraint("Vertical", 5))
sketch7.addConstraint(Sketcher.Constraint("Horizontal", 6))
sketch7.addConstraint(Sketcher.Constraint("Vertical", 7))
sketch7.addConstraint(Sketcher.Constraint("Horizontal", 8))
sketch7.addConstraint(Sketcher.Constraint("Vertical", 9))
sketch7.addConstraint(Sketcher.Constraint("Horizontal", 10))
sketch7.addConstraint(Sketcher.Constraint("Vertical", 11))
sketch7.addConstraint(Sketcher.Constraint("Horizontal", 12))
sketch7.addConstraint(Sketcher.Constraint("Vertical", 13))
sketch7.addConstraint(Sketcher.Constraint("Horizontal", 14))
sketch7.addConstraint(Sketcher.Constraint("Vertical", 15))
sketch7.addConstraint(Sketcher.Constraint("Horizontal", 16))
sketch7.addConstraint(Sketcher.Constraint("Vertical", 3, 2, 5, 2))
sketch7.addConstraint(Sketcher.Constraint("Vertical", 2, 2, 6, 2))
sketch7.addConstraint(Sketcher.Constraint("Equal", 8, 10))
sketch7.addConstraint(Sketcher.Constraint("Equal", 12, 14))
sketch7.addConstraint(Sketcher.Constraint("Equal", 2, 5))
sketch7.addConstraint(Sketcher.Constraint("Equal", 7, 9))
sketch7.addConstraint(Sketcher.Constraint("Equal", 11, 13))
sketch7.addConstraint(Sketcher.Constraint("Diameter", 4, Q("127 mm")))
sketch7.addConstraint(Sketcher.Constraint("DistanceX", 1, 1, 1, 2, Q("245 mm")))
sketch7.addConstraint(Sketcher.Constraint("DistanceY", 0, 2, 0, 1, Q("360 mm")))
sketch7.addConstraint(Sketcher.Constraint("DistanceX", 4, 3, -1, 1, Q("520 mm")))
sketch7.addConstraint(Sketcher.Constraint("DistanceY", 4, 3, -1, 1, Q("740 mm")))
sketch7.addConstraint(Sketcher.Constraint("DistanceX", 0, 2, -1, 1, Q("165 mm")))
sketch7.addConstraint(Sketcher.Constraint("DistanceY", -1, 1, 0, 2, Q("1660 mm")))
sketch7.addConstraint(Sketcher.Constraint("DistanceY", 5, 2, -1, 1, Q("3510 mm")))
sketch7.addConstraint(Sketcher.Constraint("DistanceX", -1, 1, 9, 2, Q("1290 mm")))
sketch7.addConstraint(Sketcher.Constraint("DistanceY", 9, 2, -1, 1, Q("3530 mm")))
sketch7.addConstraint(Sketcher.Constraint("DistanceX", -1, 1, 13, 2, Q("1260 mm")))
sketch7.addConstraint(Sketcher.Constraint("DistanceY", 13, 2, -1, 1, Q("1250 mm")))
pad4 = body.newObject("PartDesign::Pad", "Pad003")
pad4.Profile = sketch7
pad4.Length = 10

doc.recompute()
